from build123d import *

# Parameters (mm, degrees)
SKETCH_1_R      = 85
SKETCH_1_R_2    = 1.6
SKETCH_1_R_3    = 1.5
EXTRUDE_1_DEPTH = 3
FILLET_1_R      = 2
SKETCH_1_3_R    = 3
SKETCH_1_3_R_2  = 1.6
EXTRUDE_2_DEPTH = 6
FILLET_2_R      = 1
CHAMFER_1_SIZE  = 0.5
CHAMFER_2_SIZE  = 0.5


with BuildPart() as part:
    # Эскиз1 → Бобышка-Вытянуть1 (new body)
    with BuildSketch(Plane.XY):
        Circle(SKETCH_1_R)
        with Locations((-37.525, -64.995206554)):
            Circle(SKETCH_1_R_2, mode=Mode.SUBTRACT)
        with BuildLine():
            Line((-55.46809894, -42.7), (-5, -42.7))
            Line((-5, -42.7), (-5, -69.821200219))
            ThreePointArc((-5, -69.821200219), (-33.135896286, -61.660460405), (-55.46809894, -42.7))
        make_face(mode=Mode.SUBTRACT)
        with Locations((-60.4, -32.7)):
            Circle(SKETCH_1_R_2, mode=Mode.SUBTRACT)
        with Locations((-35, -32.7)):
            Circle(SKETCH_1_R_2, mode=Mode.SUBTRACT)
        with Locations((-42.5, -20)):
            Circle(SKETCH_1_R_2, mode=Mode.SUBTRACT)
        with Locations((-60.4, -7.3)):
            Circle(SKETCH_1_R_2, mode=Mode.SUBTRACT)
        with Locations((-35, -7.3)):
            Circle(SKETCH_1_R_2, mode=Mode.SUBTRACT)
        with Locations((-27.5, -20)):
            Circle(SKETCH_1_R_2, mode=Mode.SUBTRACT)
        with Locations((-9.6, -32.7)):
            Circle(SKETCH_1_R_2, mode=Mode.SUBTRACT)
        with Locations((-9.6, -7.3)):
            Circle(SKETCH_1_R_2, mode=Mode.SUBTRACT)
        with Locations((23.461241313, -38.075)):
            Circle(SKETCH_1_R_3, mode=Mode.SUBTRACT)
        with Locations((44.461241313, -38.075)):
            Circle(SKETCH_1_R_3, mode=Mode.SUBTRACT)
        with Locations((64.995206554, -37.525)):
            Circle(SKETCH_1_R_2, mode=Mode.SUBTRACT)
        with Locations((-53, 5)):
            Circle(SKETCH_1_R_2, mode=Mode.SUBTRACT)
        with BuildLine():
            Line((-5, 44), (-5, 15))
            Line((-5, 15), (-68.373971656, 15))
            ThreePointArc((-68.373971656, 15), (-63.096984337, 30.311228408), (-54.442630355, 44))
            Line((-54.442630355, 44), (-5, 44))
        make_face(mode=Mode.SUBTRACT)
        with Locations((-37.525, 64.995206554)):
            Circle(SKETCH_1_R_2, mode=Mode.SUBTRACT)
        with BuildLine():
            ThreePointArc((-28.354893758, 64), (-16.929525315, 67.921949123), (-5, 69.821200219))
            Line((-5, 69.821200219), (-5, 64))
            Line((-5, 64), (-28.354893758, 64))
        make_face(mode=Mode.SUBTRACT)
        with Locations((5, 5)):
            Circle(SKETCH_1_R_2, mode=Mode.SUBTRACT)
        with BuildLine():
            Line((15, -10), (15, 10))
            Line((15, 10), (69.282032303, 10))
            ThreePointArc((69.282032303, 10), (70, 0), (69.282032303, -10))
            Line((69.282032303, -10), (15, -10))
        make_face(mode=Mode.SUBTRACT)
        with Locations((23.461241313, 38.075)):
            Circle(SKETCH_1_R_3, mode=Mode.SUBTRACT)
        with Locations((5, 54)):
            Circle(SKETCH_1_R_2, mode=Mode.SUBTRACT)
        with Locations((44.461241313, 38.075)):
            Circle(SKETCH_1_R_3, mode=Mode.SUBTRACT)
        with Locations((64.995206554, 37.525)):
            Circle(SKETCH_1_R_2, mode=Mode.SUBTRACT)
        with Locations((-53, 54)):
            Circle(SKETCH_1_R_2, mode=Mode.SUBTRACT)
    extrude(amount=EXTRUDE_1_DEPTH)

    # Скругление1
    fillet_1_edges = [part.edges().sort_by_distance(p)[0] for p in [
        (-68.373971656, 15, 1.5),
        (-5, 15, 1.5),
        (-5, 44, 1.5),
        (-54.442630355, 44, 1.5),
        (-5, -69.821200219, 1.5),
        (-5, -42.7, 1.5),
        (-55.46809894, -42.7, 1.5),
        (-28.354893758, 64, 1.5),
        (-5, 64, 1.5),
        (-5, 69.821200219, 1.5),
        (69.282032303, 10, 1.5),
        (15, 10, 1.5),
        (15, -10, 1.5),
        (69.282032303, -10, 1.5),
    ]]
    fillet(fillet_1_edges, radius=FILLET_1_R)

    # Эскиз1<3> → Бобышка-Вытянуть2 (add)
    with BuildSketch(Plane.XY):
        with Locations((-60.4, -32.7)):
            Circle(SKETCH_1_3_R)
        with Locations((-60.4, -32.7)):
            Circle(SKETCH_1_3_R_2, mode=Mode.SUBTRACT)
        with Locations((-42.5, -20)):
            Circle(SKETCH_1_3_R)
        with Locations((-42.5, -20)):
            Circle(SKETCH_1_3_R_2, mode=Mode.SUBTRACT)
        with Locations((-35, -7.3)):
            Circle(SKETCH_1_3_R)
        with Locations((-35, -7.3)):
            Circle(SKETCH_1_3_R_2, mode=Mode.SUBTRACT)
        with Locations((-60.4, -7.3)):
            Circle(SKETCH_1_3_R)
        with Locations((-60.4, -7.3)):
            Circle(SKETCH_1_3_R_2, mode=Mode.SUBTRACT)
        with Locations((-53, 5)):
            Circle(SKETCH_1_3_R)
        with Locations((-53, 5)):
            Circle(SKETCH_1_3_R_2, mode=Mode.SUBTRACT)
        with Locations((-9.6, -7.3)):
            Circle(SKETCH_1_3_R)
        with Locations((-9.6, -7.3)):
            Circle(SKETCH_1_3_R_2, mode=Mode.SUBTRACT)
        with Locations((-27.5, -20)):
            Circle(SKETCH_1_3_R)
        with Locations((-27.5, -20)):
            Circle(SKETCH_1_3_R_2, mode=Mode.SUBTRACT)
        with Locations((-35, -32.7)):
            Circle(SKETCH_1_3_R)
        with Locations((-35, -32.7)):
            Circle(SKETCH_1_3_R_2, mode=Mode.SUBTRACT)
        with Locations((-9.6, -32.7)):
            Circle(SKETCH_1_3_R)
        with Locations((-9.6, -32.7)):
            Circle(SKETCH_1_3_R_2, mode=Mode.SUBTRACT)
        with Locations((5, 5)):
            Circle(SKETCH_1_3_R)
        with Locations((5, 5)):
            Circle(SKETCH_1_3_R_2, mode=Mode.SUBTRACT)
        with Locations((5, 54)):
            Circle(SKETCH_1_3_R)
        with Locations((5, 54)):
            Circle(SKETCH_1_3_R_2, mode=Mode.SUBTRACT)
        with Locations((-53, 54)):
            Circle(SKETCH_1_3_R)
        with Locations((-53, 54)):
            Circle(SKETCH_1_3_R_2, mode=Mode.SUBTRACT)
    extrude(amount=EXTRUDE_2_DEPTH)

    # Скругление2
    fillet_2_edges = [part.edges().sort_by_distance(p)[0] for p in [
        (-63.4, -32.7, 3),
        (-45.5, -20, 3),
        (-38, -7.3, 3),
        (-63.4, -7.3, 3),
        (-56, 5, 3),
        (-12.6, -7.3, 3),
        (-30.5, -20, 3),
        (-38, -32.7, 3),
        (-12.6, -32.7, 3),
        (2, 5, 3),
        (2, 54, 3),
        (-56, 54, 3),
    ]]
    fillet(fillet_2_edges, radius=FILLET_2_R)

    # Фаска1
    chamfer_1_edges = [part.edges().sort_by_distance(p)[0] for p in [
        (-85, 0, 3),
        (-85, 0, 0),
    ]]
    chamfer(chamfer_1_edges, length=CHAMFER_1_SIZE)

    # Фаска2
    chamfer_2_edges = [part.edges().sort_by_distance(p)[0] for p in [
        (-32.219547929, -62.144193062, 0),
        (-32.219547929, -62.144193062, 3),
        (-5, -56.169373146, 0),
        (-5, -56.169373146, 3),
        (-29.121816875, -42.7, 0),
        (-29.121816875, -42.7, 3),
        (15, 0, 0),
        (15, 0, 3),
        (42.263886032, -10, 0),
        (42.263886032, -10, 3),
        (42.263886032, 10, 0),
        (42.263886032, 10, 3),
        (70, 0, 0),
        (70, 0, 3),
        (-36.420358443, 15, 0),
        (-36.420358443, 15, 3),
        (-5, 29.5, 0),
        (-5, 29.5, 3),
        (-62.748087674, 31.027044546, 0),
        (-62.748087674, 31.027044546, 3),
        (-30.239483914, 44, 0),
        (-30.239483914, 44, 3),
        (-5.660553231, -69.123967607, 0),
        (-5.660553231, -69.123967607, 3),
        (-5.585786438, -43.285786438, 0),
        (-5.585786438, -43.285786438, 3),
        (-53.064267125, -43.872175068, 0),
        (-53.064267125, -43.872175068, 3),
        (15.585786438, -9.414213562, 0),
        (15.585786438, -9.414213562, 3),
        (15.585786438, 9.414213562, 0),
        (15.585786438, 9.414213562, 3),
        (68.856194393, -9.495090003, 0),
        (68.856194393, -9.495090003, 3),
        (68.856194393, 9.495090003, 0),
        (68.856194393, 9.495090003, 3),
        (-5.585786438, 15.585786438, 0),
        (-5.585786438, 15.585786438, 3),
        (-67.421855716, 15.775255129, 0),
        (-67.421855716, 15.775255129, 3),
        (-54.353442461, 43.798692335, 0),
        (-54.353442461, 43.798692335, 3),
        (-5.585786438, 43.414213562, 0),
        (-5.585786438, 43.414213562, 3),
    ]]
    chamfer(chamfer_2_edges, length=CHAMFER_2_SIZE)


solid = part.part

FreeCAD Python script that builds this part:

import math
import FreeCAD as App
import Part
import Sketcher
from FreeCAD import Vector


def edges_at(feature, points):
    """Names of the edges that pass closest to the given points."""
    edges = feature.Shape.Edges
    near = lambda p: min(range(len(edges)), key=lambda i: edges[i].distToShape(Part.Vertex(*p))[0])
    return sorted({f"Edge{near(p) + 1}" for p in points})

doc = App.newDocument("Part")
params = doc.addObject("Spreadsheet::Sheet", "Params")
for row, (alias, value) in enumerate([
    ("sketch1_diameter", "170 mm"),
    ("sketch1_diameter2", "3 mm"),
    ("sketch1_radius", "70 mm"),
    ("sketch1_diameter3", "3.2 mm"),
    ("sketch1_height", "29 mm"),
    ("pad1_length", "3 mm"),
    ("fillet_radius", "2 mm"),
    ("sketch2_diameter", "6 mm"),
    ("sketch2_diameter2", "3.2 mm"),
    ("pad2_length", "6 mm"),
    ("fillet2_radius", "1 mm"),
    ("chamfer_size", "0.5 mm"),
    ("chamfer2_size", "0.5 mm"),
], start=1):
    params.set(f"A{row}", alias)
    params.set(f"B{row}", "=" + value)
    params.setAlias(f"B{row}", alias)

body = doc.addObject("PartDesign::Body", "Body")

# Sketch on XY plane
sketch1 = body.newObject("Sketcher::SketchObject", "Sketch")
sketch1.AttachmentSupport = (doc.getObject("XY_Plane"), [""])
sketch1.MapMode = "FlatFace"
sketch1.addGeometry(Part.Circle(Vector(0, 0, 0), Vector(0, 0, 1), 85), False)
sketch1.addGeometry(Part.Circle(Vector(-37.5, -65, 0), Vector(0, 0, 1), 1.6), False)
sketch1.addGeometry(Part.ArcOfCircle(Part.Circle(Vector(0, 0, 0), Vector(0, 0, 1), 70), math.radians(-142), math.radians(-94)), False)
sketch1.addGeometry(Part.LineSegment(Vector(-55.5, -42.7, 0), Vector(-5, -42.7, 0)), False)
sketch1.addGeometry(Part.LineSegment(Vector(-5, -42.7, 0), Vector(-5, -69.8, 0)), False)
sketch1.addGeometry(Part.Circle(Vector(-60.4, -32.7, 0), Vector(0, 0, 1), 1.6), False)
sketch1.addGeometry(Part.Circle(Vector(-35, -32.7, 0), Vector(0, 0, 1), 1.6), False)
sketch1.addGeometry(Part.Circle(Vector(-42.5, -20, 0), Vector(0, 0, 1), 1.6), False)
sketch1.addGeometry(Part.Circle(Vector(-60.4, -7.3, 0), Vector(0, 0, 1), 1.6), False)
sketch1.addGeometry(Part.Circle(Vector(-35, -7.3, 0), Vector(0, 0, 1), 1.6), False)
sketch1.addGeometry(Part.Circle(Vector(-27.5, -20, 0), Vector(0, 0, 1), 1.6), False)
sketch1.addGeometry(Part.Circle(Vector(-9.6, -32.7, 0), Vector(0, 0, 1), 1.6), False)
sketch1.addGeometry(Part.Circle(Vector(-9.6, -7.3, 0), Vector(0, 0, 1), 1.6), False)
sketch1.addGeometry(Part.Circle(Vector(23.5, -38.1, 0), Vector(0, 0, 1), 1.5), False)
sketch1.addGeometry(Part.Circle(Vector(44.5, -38.1, 0), Vector(0, 0, 1), 1.5), False)
sketch1.addGeometry(Part.Circle(Vector(65, -37.5, 0), Vector(0, 0, 1), 1.6), False)
sketch1.addGeometry(Part.Circle(Vector(-53, 5, 0), Vector(0, 0, 1), 1.6), False)
sketch1.addGeometry(Part.LineSegment(Vector(-54.4, 44, 0), Vector(-5, 44, 0)), False)
sketch1.addGeometry(Part.LineSegment(Vector(-5, 44, 0), Vector(-5, 15, 0)), False)
sketch1.addGeometry(Part.LineSegment(Vector(-5, 15, 0), Vector(-68.4, 15, 0)), False)
sketch1.addGeometry(Part.ArcOfCircle(Part.Circle(Vector(0, 0, 0), Vector(0, 0, 1), 70), math.radians(141), math.radians(168)), False)
sketch1.addGeometry(Part.Circle(Vector(-53, 54, 0), Vector(0, 0, 1), 1.6), False)
sketch1.addGeometry(Part.Circle(Vector(-37.5, 65, 0), Vector(0, 0, 1), 1.6), False)
sketch1.addGeometry(Part.LineSegment(Vector(-5, 64, 0), Vector(-28.4, 64, 0)), False)
sketch1.addGeometry(Part.ArcOfCircle(Part.Circle(Vector(0, 0, 0), Vector(0, 0, 1), 70), math.radians(94.1), math.radians(113.9)), False)
sketch1.addGeometry(Part.LineSegment(Vector(-5, 69.8, 0), Vector(-5, 64, 0)), False)
sketch1.addGeometry(Part.Circle(Vector(5, 5, 0), Vector(0, 0, 1), 1.6), False)
sketch1.addGeometry(Part.LineSegment(Vector(69.3, -10, 0), Vector(15, -10, 0)), False)
sketch1.addGeometry(Part.LineSegment(Vector(15, -10, 0), Vector(15, 10, 0)), False)
sketch1.addGeometry(Part.LineSegment(Vector(15, 10, 0), Vector(69.3, 10, 0)), False)
sketch1.addGeometry(Part.ArcOfCircle(Part.Circle(Vector(0, 0, 0), Vector(0, 0, 1), 70), math.radians(-8.21), math.radians(8.21)), False)
sketch1.addGeometry(Part.Circle(Vector(23.5, 38.1, 0), Vector(0, 0, 1), 1.5), False)
sketch1.addGeometry(Part.Circle(Vector(5, 54, 0), Vector(0, 0, 1), 1.6), False)
sketch1.addGeometry(Part.Circle(Vector(44.5, 38.1, 0), Vector(0, 0, 1), 1.5), False)
sketch1.addGeometry(Part.Circle(Vector(65, 37.5, 0), Vector(0, 0, 1), 1.6), False)
sketch1.addConstraint(Sketcher.Constraint("Coincident", 2, 1, 3, 1))
sketch1.addConstraint(Sketcher.Constraint("Coincident", 3, 2, 4, 1))
sketch1.addConstraint(Sketcher.Constraint("Coincident", 4, 2, 2, 2))
sketch1.addConstraint(Sketcher.Constraint("Coincident", 17, 2, 18, 1))
sketch1.addConstraint(Sketcher.Constraint("Coincident", 18, 2, 19, 1))
sketch1.addConstraint(Sketcher.Constraint("Coincident", 19, 2, 20, 2))
sketch1.addConstraint(Sketcher.Constraint("Coincident", 20, 1, 17, 1))
sketch1.addConstraint(Sketcher.Constraint("Coincident", 23, 2, 24, 2))
sketch1.addConstraint(Sketcher.Constraint("Coincident", 24, 1, 25, 1))
sketch1.addConstraint(Sketcher.Constraint("Coincident", 25, 2, 23, 1))
sketch1.addConstraint(Sketcher.Constraint("Coincident", 27, 2, 28, 1))
sketch1.addConstraint(Sketcher.Constraint("Coincident", 28, 2, 29, 1))
sketch1.addConstraint(Sketcher.Constraint("Coincident", 29, 2, 30, 2))
sketch1.addConstraint(Sketcher.Constraint("Coincident", 30, 1, 27, 1))
sketch1.addConstraint(Sketcher.Constraint("Horizontal", 3))
sketch1.addConstraint(Sketcher.Constraint("Vertical", 4))
sketch1.addConstraint(Sketcher.Constraint("Horizontal", 17))
sketch1.addConstraint(Sketcher.Constraint("Vertical", 18))
sketch1.addConstraint(Sketcher.Constraint("Horizontal", 19))
sketch1.addConstraint(Sketcher.Constraint("Horizontal", 23))
sketch1.addConstraint(Sketcher.Constraint("Vertical", 25))
sketch1.addConstraint(Sketcher.Constraint("Horizontal", 27))
sketch1.addConstraint(Sketcher.Constraint("Vertical", 28))
sketch1.addConstraint(Sketcher.Constraint("Horizontal", 29))
sketch1.addConstraint(Sketcher.Constraint("Coincident", 0, 3, -1, 1))
sketch1.addConstraint(Sketcher.Constraint("Coincident", 2, 3, -1, 1))
sketch1.addConstraint(Sketcher.Constraint("Coincident", 20, 3, -1, 1))
sketch1.addConstraint(Sketcher.Constraint("Coincident", 24, 3, -1, 1))
sketch1.addConstraint(Sketcher.Constraint("Coincident", 30, 3, -1, 1))
sketch1.addConstraint(Sketcher.Constraint("Equal", 1, 5))
sketch1.addConstraint(Sketcher.Constraint("Equal", 5, 6))
sketch1.addConstraint(Sketcher.Constraint("Equal", 6, 7))
sketch1.addConstraint(Sketcher.Constraint("Equal", 7, 8))
sketch1.addConstraint(Sketcher.Constraint("Equal", 8, 9))
sketch1.addConstraint(Sketcher.Constraint("Equal", 9, 10))
sketch1.addConstraint(Sketcher.Constraint("Equal", 10, 11))
sketch1.addConstraint(Sketcher.Constraint("Equal", 11, 12))
sketch1.addConstraint(Sketcher.Constraint("Equal", 13, 14))
sketch1.addConstraint(Sketcher.Constraint("Equal", 12, 15))
sketch1.addConstraint(Sketcher.Constraint("Equal", 15, 16))
sketch1.addConstraint(Sketcher.Constraint("Equal", 2, 20))
sketch1.addConstraint(Sketcher.Constraint("Equal", 16, 21))
sketch1.addConstraint(Sketcher.Constraint("Equal", 21, 22))
sketch1.addConstraint(Sketcher.Constraint("Equal", 20, 24))
sketch1.addConstraint(Sketcher.Constraint("Equal", 22, 26))
sketch1.addConstraint(Sketcher.Constraint("Equal", 24, 30))
sketch1.addConstraint(Sketcher.Constraint("Equal", 14, 31))
sketch1.addConstraint(Sketcher.Constraint("Equal", 26, 32))
sketch1.addConstraint(Sketcher.Constraint("Equal", 31, 33))
sketch1.addConstraint(Sketcher.Constraint("Equal", 32, 34))
sketch1.addConstraint(Sketcher.Constraint("Symmetric", 1, 3, 22, 3, -1))
sketch1.addConstraint(Sketcher.Constraint("Symmetric", 13, 3, 31, 3, -1))
sketch1.addConstraint(Sketcher.Constraint("Symmetric", 14, 3, 33, 3, -1))
sketch1.addConstraint(Sketcher.Constraint("Symmetric", 15, 3, 34, 3, -1))
sketch1.addConstraint(Sketcher.Constraint("Horizontal", 5, 3, 6, 3))
sketch1.addConstraint(Sketcher.Constraint("Horizontal", 8, 3, 9, 3))
sketch1.addConstraint(Sketcher.Constraint("Horizontal", 7, 3, 10, 3))
sketch1.addConstraint(Sketcher.Constraint("Horizontal", 6, 3, 11, 3))
sketch1.addConstraint(Sketcher.Constraint("Horizontal", 9, 3, 12, 3))
sketch1.addConstraint(Sketcher.Constraint("Horizontal", 13, 3, 14, 3))
sketch1.addConstraint(Sketcher.Constraint("Horizontal", 16, 3, 26, 3))
sketch1.addConstraint(Sketcher.Constraint("Horizontal", 21, 3, 32, 3))
sketch1.addConstraint(Sketcher.Constraint("Vertical", 5, 3, 8, 3))
sketch1.addConstraint(Sketcher.Constraint("Vertical", 6, 3, 9, 3))
sketch1.addConstraint(Sketcher.Constraint("Vertical", 11, 3, 12, 3))
sketch1.addConstraint(Sketcher.Constraint("Vertical", 16, 3, 21, 3))
sketch1.addConstraint(Sketcher.Constraint("Vertical", 26, 3, 32, 3))
sketch1.addConstraint(Sketcher.Constraint("Vertical", 4, 2, 17, 2))
sketch1.addConstraint(Sketcher.Constraint("Vertical", 18, 2, 24, 1))
sketch1.addConstraint(Sketcher.Constraint("Vertical", 29, 2, 30, 1))
sketch1.addConstraint(Sketcher.Constraint("Diameter", 0, 170.0))
sketch1.addConstraint(Sketcher.Constraint("Diameter", 13, 3.0))
sketch1.addConstraint(Sketcher.Constraint("Radius", 2, 70.0))
sketch1.addConstraint(Sketcher.Constraint("Diameter", 1, 3.2))
sketch1.addConstraint(Sketcher.Constraint("DistanceY", 18, 2, 18, 1, 29.0))
sketch1.addConstraint(Sketcher.Constraint("DistanceY", 28, 1, 28, 2, 20.0))
sketch1.addConstraint(Sketcher.Constraint("DistanceX", 6, 3, -1, 1, 35.0))
sketch1.addConstraint(Sketcher.Constraint("DistanceY", 7, 3, -1, 1, 20.0))
sketch1.addConstraint(Sketcher.Constraint("DistanceX", 16, 3, -1, 1, 53.0))
sketch1.addConstraint(Sketcher.Constraint("DistanceY", -1, 1, 16, 3, 5.0))
sketch1.addConstraint(Sketcher.Constraint("DistanceY", -1, 1, 21, 3, 54.0))
sketch1.addConstraint(Sketcher.Constraint("DistanceX", -1, 1, 26, 3, 5.0))
sketch1.addConstraint(Sketcher.Constraint("DistanceX", 3, 2, -1, 1, 5.0))
sketch1.addConstraint(Sketcher.Constraint("DistanceY", -1, 1, 17, 2, 44.0))
sketch1.addConstraint(Sketcher.Constraint("DistanceY", -1, 1, 23, 2, 64.0))
sketch1.addConstraint(Sketcher.Constraint("DistanceX", -1, 1, 27, 2, 15.0))
sketch1.addConstraint(Sketcher.Constraint("DistanceX", 7, 3, 10, 3, 15.0))
sketch1.addConstraint(Sketcher.Constraint("DistanceX", 13, 3, 14, 3, 21.0))
sketch1.addConstraint(Sketcher.Constraint("DistanceY", 2, 1, 5, 3, 10.0))
sketch1.addConstraint(Sketcher.Constraint("DistanceX", 5, 3, -1, 1, 60.4))
sketch1.addConstraint(Sketcher.Constraint("DistanceY", 5, 3, -1, 1, 32.7))
sketch1.addConstraint(Sketcher.Constraint("DistanceX", 7, 3, -1, 1, 42.5))
sketch1.addConstraint(Sketcher.Constraint("DistanceY", 8, 3, -1, 1, 7.3))
sketch1.addConstraint(Sketcher.Constraint("DistanceX", 11, 3, -1, 1, 9.6))
sketch1.addConstraint(Sketcher.Constraint("DistanceY", 14, 3, 15, 3, 0.55))
sketch1.addConstraint(Sketcher.Constraint("DistanceX", 1, 3, -1, 1, 37.525))
sketch1.addConstraint(Sketcher.Constraint("DistanceY", 13, 3, -1, 1, 38.075))
sketch1.addConstraint(Sketcher.Constraint("DistanceX", -1, 1, 13, 3, 23.461241))
sketch1.addConstraint(Sketcher.Constraint("DistanceY", 1, 3, -1, 1, 64.995207))
sketch1.addConstraint(Sketcher.Constraint("DistanceX", -1, 1, 15, 3, 64.995207))
sketch1.setExpression("Constraints[70]", "Params.sketch1_diameter")
sketch1.setExpression("Constraints[71]", "Params.sketch1_diameter2")
sketch1.setExpression("Constraints[72]", "Params.sketch1_radius")
sketch1.setExpression("Constraints[73]", "Params.sketch1_diameter3")
sketch1.setExpression("Constraints[74]", "Params.sketch1_height")
pad1 = body.newObject("PartDesign::Pad", "Pad")
pad1.Profile = sketch1
pad1.setExpression("Length", "Params.pad1_length")
doc.recompute()

fillet = body.newObject("PartDesign::Fillet", "Fillet")
fillet.Base = (pad1, edges_at(pad1, [
    (-68.374, 15, 1.5),
    (-5, 15, 1.5),
    (-5, 44, 1.5),
    (-54.443, 44, 1.5),
    (-5, -69.821, 1.5),
    (-5, -42.7, 1.5),
    (-55.468, -42.7, 1.5),
    (-28.355, 64, 1.5),
    (-5, 64, 1.5),
    (-5, 69.821, 1.5),
    (69.282, 10, 1.5),
    (15, 10, 1.5),
    (15, -10, 1.5),
    (69.282, -10, 1.5),
]))
fillet.setExpression("Radius", "Params.fillet_radius")

# Sketch on XY plane
sketch2 = body.newObject("Sketcher::SketchObject", "Sketch001")
sketch2.AttachmentSupport = (doc.getObject("XY_Plane"), [""])
sketch2.MapMode = "FlatFace"
sketch2.addGeometry(Part.Circle(Vector(-60.4, -32.7, 0), Vector(0, 0, 1), 3), False)
sketch2.addGeometry(Part.Circle(Vector(-60.4, -32.7, 0), Vector(0, 0, 1), 1.6), False)
sketch2.addGeometry(Part.Circle(Vector(-42.5, -20, 0), Vector(0, 0, 1), 3), False)
sketch2.addGeometry(Part.Circle(Vector(-42.5, -20, 0), Vector(0, 0, 1), 1.6), False)
sketch2.addGeometry(Part.Circle(Vector(-35, -7.3, 0), Vector(0, 0, 1), 3), False)
sketch2.addGeometry(Part.Circle(Vector(-35, -7.3, 0), Vector(0, 0, 1), 1.6), False)
sketch2.addGeometry(Part.Circle(Vector(-60.4, -7.3, 0), Vector(0, 0, 1), 3), False)
sketch2.addGeometry(Part.Circle(Vector(-60.4, -7.3, 0), Vector(0, 0, 1), 1.6), False)
sketch2.addGeometry(Part.Circle(Vector(-53, 5, 0), Vector(0, 0, 1), 3), False)
sketch2.addGeometry(Part.Circle(Vector(-53, 5, 0), Vector(0, 0, 1), 1.6), False)
sketch2.addGeometry(Part.Circle(Vector(-9.6, -7.3, 0), Vector(0, 0, 1), 3), False)
sketch2.addGeometry(Part.Circle(Vector(-9.6, -7.3, 0), Vector(0, 0, 1), 1.6), False)
sketch2.addGeometry(Part.Circle(Vector(-27.5, -20, 0), Vector(0, 0, 1), 3), False)
sketch2.addGeometry(Part.Circle(Vector(-27.5, -20, 0), Vector(0, 0, 1), 1.6), False)
sketch2.addGeometry(Part.Circle(Vector(-35, -32.7, 0), Vector(0, 0, 1), 3), False)
sketch2.addGeometry(Part.Circle(Vector(-35, -32.7, 0), Vector(0, 0, 1), 1.6), False)
sketch2.addGeometry(Part.Circle(Vector(-9.6, -32.7, 0), Vector(0, 0, 1), 3), False)
sketch2.addGeometry(Part.Circle(Vector(-9.6, -32.7, 0), Vector(0, 0, 1), 1.6), False)
sketch2.addGeometry(Part.Circle(Vector(5, 5, 0), Vector(0, 0, 1), 3), False)
sketch2.addGeometry(Part.Circle(Vector(5, 5, 0), Vector(0, 0, 1), 1.6), False)
sketch2.addGeometry(Part.Circle(Vector(5, 54, 0), Vector(0, 0, 1), 3), False)
sketch2.addGeometry(Part.Circle(Vector(5, 54, 0), Vector(0, 0, 1), 1.6), False)
sketch2.addGeometry(Part.Circle(Vector(-53, 54, 0), Vector(0, 0, 1), 3), False)
sketch2.addGeometry(Part.Circle(Vector(-53, 54, 0), Vector(0, 0, 1), 1.6), False)
sketch2.addConstraint(Sketcher.Constraint("Coincident", 1, 3, 0, 3))
sketch2.addConstraint(Sketcher.Constraint("Coincident", 3, 3, 2, 3))
sketch2.addConstraint(Sketcher.Constraint("Coincident", 5, 3, 4, 3))
sketch2.addConstraint(Sketcher.Constraint("Coincident", 7, 3, 6, 3))
sketch2.addConstraint(Sketcher.Constraint("Coincident", 9, 3, 8, 3))
sketch2.addConstraint(Sketcher.Constraint("Coincident", 11, 3, 10, 3))
sketch2.addConstraint(Sketcher.Constraint("Coincident", 13, 3, 12, 3))
sketch2.addConstraint(Sketcher.Constraint("Coincident", 15, 3, 14, 3))
sketch2.addConstraint(Sketcher.Constraint("Coincident", 17, 3, 16, 3))
sketch2.addConstraint(Sketcher.Constraint("Coincident", 19, 3, 18, 3))
sketch2.addConstraint(Sketcher.Constraint("Coincident", 21, 3, 20, 3))
sketch2.addConstraint(Sketcher.Constraint("Coincident", 23, 3, 22, 3))
sketch2.addConstraint(Sketcher.Constraint("Equal", 0, 2))
sketch2.addConstraint(Sketcher.Constraint("Equal", 1, 3))
sketch2.addConstraint(Sketcher.Constraint("Equal", 2, 4))
sketch2.addConstraint(Sketcher.Constraint("Equal", 3, 5))
sketch2.addConstraint(Sketcher.Constraint("Equal", 4, 6))
sketch2.addConstraint(Sketcher.Constraint("Equal", 5, 7))
sketch2.addConstraint(Sketcher.Constraint("Equal", 6, 8))
sketch2.addConstraint(Sketcher.Constraint("Equal", 7, 9))
sketch2.addConstraint(Sketcher.Constraint("Equal", 8, 10))
sketch2.addConstraint(Sketcher.Constraint("Equal", 9, 11))
sketch2.addConstraint(Sketcher.Constraint("Equal", 10, 12))
sketch2.addConstraint(Sketcher.Constraint("Equal", 11, 13))
sketch2.addConstraint(Sketcher.Constraint("Equal", 12, 14))
sketch2.addConstraint(Sketcher.Constraint("Equal", 13, 15))
sketch2.addConstraint(Sketcher.Constraint("Equal", 14, 16))
sketch2.addConstraint(Sketcher.Constraint("Equal", 15, 17))
sketch2.addConstraint(Sketcher.Constraint("Equal", 16, 18))
sketch2.addConstraint(Sketcher.Constraint("Equal", 17, 19))
sketch2.addConstraint(Sketcher.Constraint("Equal", 18, 20))
sketch2.addConstraint(Sketcher.Constraint("Equal", 19, 21))
sketch2.addConstraint(Sketcher.Constraint("Equal", 20, 22))
sketch2.addConstraint(Sketcher.Constraint("Equal", 21, 23))
sketch2.addConstraint(Sketcher.Constraint("Horizontal", 5, 3, 6, 3))
sketch2.addConstraint(Sketcher.Constraint("Horizontal", 7, 3, 10, 3))
sketch2.addConstraint(Sketcher.Constraint("Horizontal", 3, 3, 12, 3))
sketch2.addConstraint(Sketcher.Constraint("Horizontal", 1, 3, 14, 3))
sketch2.addConstraint(Sketcher.Constraint("Horizontal", 15, 3, 16, 3))
sketch2.addConstraint(Sketcher.Constraint("Horizontal", 9, 3, 18, 3))
sketch2.addConstraint(Sketcher.Constraint("Horizontal", 21, 3, 22, 3))
sketch2.addConstraint(Sketcher.Constraint("Vertical", 1, 3, 6, 3))
sketch2.addConstraint(Sketcher.Constraint("Vertical", 5, 3, 14, 3))
sketch2.addConstraint(Sketcher.Constraint("Vertical", 11, 3, 16, 3))
sketch2.addConstraint(Sketcher.Constraint("Vertical", 19, 3, 20, 3))
sketch2.addConstraint(Sketcher.Constraint("Vertical", 9, 3, 22, 3))
sketch2.addConstraint(Sketcher.Constraint("Diameter", 0, 6.0))
sketch2.addConstraint(Sketcher.Constraint("Diameter", 1, 3.2))
sketch2.addConstraint(Sketcher.Constraint("DistanceY", 2, 3, -1, 1, 20.0))
sketch2.addConstraint(Sketcher.Constraint("DistanceX", 4, 3, -1, 1, 35.0))
sketch2.addConstraint(Sketcher.Constraint("DistanceX", 8, 3, -1, 1, 53.0))
sketch2.addConstraint(Sketcher.Constraint("DistanceY", -1, 1, 8, 3, 5.0))
sketch2.addConstraint(Sketcher.Constraint("DistanceX", -1, 1, 18, 3, 5.0))
sketch2.addConstraint(Sketcher.Constraint("DistanceY", -1, 1, 20, 3, 54.0))
sketch2.addConstraint(Sketcher.Constraint("DistanceX", 2, 3, 12, 3, 15.0))
sketch2.addConstraint(Sketcher.Constraint("DistanceX", 0, 3, -1, 1, 60.4))
sketch2.addConstraint(Sketcher.Constraint("DistanceY", 0, 3, -1, 1, 32.7))
sketch2.addConstraint(Sketcher.Constraint("DistanceX", 2, 3, -1, 1, 42.5))
sketch2.addConstraint(Sketcher.Constraint("DistanceY", 4, 3, -1, 1, 7.3))
sketch2.addConstraint(Sketcher.Constraint("DistanceX", 10, 3, -1, 1, 9.6))
sketch2.setExpression("Constraints[46]", "Params.sketch2_diameter")
sketch2.setExpression("Constraints[47]", "Params.sketch2_diameter2")
pad2 = body.newObject("PartDesign::Pad", "Pad001")
pad2.Profile = sketch2
pad2.setExpression("Length", "Params.pad2_length")
doc.recompute()

fillet2 = body.newObject("PartDesign::Fillet", "Fillet001")
fillet2.Base = (pad2, edges_at(pad2, [
    (-63.4, -32.7, 3),
    (-45.5, -20, 3),
    (-38, -7.3, 3),
    (-63.4, -7.3, 3),
    (-56, 5, 3),
    (-12.6, -7.3, 3),
    (-30.5, -20, 3),
    (-38, -32.7, 3),
    (-12.6, -32.7, 3),
    (2, 5, 3),
    (2, 54, 3),
    (-56, 54, 3),
]))
fillet2.setExpression("Radius", "Params.fillet2_radius")
doc.recompute()

chamfer = body.newObject("PartDesign::Chamfer", "Chamfer")
chamfer.Base = (fillet2, edges_at(fillet2, [(-85, 0, 3), (-85, 0, 0)]))
chamfer.setExpression("Size", "Params.chamfer_size")
doc.recompute()

chamfer2 = body.newObject("PartDesign::Chamfer", "Chamfer001")
chamfer2.Base = (chamfer, edges_at(chamfer, [
    (-32.22, -62.144, 0),
    (-32.22, -62.144, 3),
    (-5, -56.169, 0),
    (-5, -56.169, 3),
    (-29.122, -42.7, 0),
    (-29.122, -42.7, 3),
    (15, 0, 0),
    (15, 0, 3),
    (42.264, -10, 0),
    (42.264, -10, 3),
    (42.264, 10, 0),
    (42.264, 10, 3),
    (70, 0, 0),
    (70, 0, 3),
    (-36.42, 15, 0),
    (-36.42, 15, 3),
    (-5, 29.5, 0),
    (-5, 29.5, 3),
    (-62.748, 31.027, 0),
    (-62.748, 31.027, 3),
    (-30.239, 44, 0),
    (-30.239, 44, 3),
    (-5.661, -69.124, 0),
    (-5.661, -69.124, 3),
    (-5.586, -43.286, 0),
    (-5.586, -43.286, 3),
    (-53.064, -43.872, 0),
    (-53.064, -43.872, 3),
    (15.586, -9.414, 0),
    (15.586, -9.414, 3),
    (15.586, 9.414, 0),
    (15.586, 9.414, 3),
    (68.856, -9.495, 0),
    (68.856, -9.495, 3),
    (68.856, 9.495, 0),
    (68.856, 9.495, 3),
    (-5.586, 15.586, 0),
    (-5.586, 15.586, 3),
    (-67.422, 15.775, 0),
    (-67.422, 15.775, 3),
    (-54.353, 43.799, 0),
    (-54.353, 43.799, 3),
    (-5.586, 43.414, 0),
    (-5.586, 43.414, 3),
]))
chamfer2.setExpression("Size", "Params.chamfer2_size")

doc.recompute()
